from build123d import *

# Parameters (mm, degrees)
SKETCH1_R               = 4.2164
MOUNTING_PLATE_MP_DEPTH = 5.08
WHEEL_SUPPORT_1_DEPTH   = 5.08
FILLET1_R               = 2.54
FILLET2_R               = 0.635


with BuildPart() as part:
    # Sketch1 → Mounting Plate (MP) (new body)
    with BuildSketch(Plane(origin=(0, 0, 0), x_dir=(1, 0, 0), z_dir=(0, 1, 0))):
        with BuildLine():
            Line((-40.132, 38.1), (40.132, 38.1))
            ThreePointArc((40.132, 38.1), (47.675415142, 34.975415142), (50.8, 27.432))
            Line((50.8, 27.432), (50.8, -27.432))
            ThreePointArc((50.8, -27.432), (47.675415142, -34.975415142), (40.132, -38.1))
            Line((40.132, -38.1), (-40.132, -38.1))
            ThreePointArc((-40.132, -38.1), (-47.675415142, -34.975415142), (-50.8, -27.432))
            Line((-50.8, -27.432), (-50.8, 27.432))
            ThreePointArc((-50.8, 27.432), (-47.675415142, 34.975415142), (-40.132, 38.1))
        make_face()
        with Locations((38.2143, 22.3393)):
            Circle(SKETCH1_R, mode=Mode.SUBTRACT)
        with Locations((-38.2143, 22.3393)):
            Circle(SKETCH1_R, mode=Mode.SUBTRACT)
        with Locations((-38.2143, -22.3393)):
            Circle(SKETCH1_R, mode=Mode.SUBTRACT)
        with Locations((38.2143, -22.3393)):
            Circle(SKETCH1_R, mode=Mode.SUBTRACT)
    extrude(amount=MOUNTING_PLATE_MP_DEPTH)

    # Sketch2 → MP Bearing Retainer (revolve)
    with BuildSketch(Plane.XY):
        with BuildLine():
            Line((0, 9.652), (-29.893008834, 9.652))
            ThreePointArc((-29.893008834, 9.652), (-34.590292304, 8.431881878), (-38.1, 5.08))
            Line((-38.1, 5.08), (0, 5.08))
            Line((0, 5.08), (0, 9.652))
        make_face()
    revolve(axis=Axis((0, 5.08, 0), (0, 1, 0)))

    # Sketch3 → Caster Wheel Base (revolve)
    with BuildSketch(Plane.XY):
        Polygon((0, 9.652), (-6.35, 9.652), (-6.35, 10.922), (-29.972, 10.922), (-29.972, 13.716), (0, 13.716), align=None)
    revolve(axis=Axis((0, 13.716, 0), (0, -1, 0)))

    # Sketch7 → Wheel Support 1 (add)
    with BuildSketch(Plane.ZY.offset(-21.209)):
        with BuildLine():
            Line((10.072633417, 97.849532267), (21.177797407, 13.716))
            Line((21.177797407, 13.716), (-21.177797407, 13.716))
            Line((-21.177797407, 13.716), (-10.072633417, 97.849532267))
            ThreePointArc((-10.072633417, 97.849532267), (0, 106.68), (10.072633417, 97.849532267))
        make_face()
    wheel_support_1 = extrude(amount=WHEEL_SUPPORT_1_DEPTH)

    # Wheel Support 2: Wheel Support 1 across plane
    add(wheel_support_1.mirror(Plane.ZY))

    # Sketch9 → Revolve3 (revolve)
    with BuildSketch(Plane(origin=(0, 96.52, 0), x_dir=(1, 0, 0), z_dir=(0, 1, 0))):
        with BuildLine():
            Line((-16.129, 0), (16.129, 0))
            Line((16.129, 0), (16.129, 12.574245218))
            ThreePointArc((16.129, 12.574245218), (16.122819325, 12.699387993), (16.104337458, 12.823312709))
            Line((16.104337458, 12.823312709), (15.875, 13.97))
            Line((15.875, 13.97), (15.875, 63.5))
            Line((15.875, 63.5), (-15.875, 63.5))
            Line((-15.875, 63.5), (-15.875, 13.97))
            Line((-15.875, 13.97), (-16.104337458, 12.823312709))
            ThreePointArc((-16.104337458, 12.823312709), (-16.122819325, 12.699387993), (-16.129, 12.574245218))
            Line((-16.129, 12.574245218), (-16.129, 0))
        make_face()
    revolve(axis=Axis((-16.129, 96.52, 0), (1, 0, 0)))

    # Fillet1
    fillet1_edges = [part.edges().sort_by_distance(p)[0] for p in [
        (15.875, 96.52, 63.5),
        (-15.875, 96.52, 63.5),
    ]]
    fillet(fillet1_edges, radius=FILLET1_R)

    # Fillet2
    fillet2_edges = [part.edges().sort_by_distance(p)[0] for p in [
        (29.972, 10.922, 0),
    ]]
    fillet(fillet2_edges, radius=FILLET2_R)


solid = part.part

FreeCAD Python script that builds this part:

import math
import FreeCAD as App
import Part
import Sketcher

V = App.Vector
Q = App.Units.Quantity


def edges_at(feature, points):
    """Names of the edges that pass closest to the given points."""
    edges = feature.Shape.Edges
    near = lambda p: min(range(len(edges)), key=lambda i: edges[i].distToShape(Part.Vertex(*p))[0])
    return sorted({f"Edge{near(p) + 1}" for p in points})


def add_polygon(sketch, points):
    """Adds a closed chain of lines whose ends are joined by coincident constraints."""
    first, n = sketch.GeometryCount, len(points)
    for a, b in zip(points, points[1:] + points[:1]):
        sketch.addGeometry(Part.LineSegment(App.Vector(*a, 0), App.Vector(*b, 0)), False)
    for i in range(n):
        sketch.addConstraint(Sketcher.Constraint("Coincident", first + i, 2, first + (i + 1) % n, 1))

doc = App.newDocument("Part")
body = doc.addObject("PartDesign::Body", "Body")

sketch1 = body.newObject("Sketcher::SketchObject", "Sketch")
sketch1.AttachmentSupport = (doc.getObject("XZ_Plane"), [""])
sketch1.MapMode = "FlatFace"
sketch1.addGeometry([
    Part.LineSegment(V(40.1, -38.1, 0), V(-40.1, -38.1, 0)),
    Part.ArcOfCircle(Part.Circle(V(-40.1, -27.4, 0), V(0, 0, 1), 10.7), math.radians(180), math.radians(270)),
    Part.LineSegment(V(-50.8, -27.4, 0), V(-50.8, 27.4, 0)),
    Part.ArcOfCircle(Part.Circle(V(-40.1, 27.4, 0), V(0, 0, 1), 10.7), math.radians(90), math.radians(180)),
    Part.LineSegment(V(-40.1, 38.1, 0), V(40.1, 38.1, 0)),
    Part.ArcOfCircle(Part.Circle(V(40.1, 27.4, 0), V(0, 0, 1), 10.7), math.radians(0), math.radians(90)),
    Part.LineSegment(V(50.8, 27.4, 0), V(50.8, -27.4, 0)),
    Part.ArcOfCircle(Part.Circle(V(40.1, -27.4, 0), V(0, 0, 1), 10.7), math.radians(-90), math.radians(0)),
    Part.Circle(V(38.2, 22.3, 0), V(0, 0, 1), 4.2),
    Part.Circle(V(-38.2, 22.3, 0), V(0, 0, 1), 4.2),
    Part.Circle(V(38.2, -22.3, 0), V(0, 0, 1), 4.2),
    Part.Circle(V(-38.2, -22.3, 0), V(0, 0, 1), 4.2),
], False)
sketch1.addConstraint([
    Sketcher.Constraint("Tangent", 0, 2, 1, 2),
    Sketcher.Constraint("Tangent", 1, 1, 2, 1),
    Sketcher.Constraint("Tangent", 2, 2, 3, 2),
    Sketcher.Constraint("Tangent", 3, 1, 4, 1),
    Sketcher.Constraint("Tangent", 4, 2, 5, 2),
    Sketcher.Constraint("Tangent", 5, 1, 6, 1),
    Sketcher.Constraint("Tangent", 6, 2, 7, 2),
    Sketcher.Constraint("Tangent", 7, 1, 0, 1),
    Sketcher.Constraint("Horizontal", 0),
    Sketcher.Constraint("Vertical", 2),
    Sketcher.Constraint("Horizontal", 4),
    Sketcher.Constraint("Vertical", 6),
    Sketcher.Constraint("Equal", 1, 3),
    Sketcher.Constraint("Equal", 3, 5),
    Sketcher.Constraint("Equal", 5, 7),
    Sketcher.Constraint("Equal", 8, 9),
    Sketcher.Constraint("Equal", 9, 10),
    Sketcher.Constraint("Equal", 10, 11),
    Sketcher.Constraint("Symmetric", 1, 3, 5, 3, -1, 1),
    Sketcher.Constraint("Symmetric", 9, 3, 10, 3, -1, 1),
    Sketcher.Constraint("Symmetric", 8, 3, 11, 3, -1, 1),
    Sketcher.Constraint("Symmetric", 8, 3, 9, 3, -2),
    Sketcher.Constraint("Radius", 1, Q("0.42 in")),
    Sketcher.Constraint("Diameter", 8, Q("0.332 in")),
    Sketcher.Constraint("DistanceX", 1, 1, -1, 1, Q("2 in")),
    Sketcher.Constraint("DistanceY", 2, 1, 2, 2, Q("2.16 in")),
    Sketcher.Constraint("DistanceX", 9, 3, 8, 3, Q("3.009 in")),
    Sketcher.Constraint("DistanceY", 10, 3, 8, 3, Q("1.759 in")),
])
pad1 = body.newObject("PartDesign::Pad", "Pad")
pad1.Profile = sketch1
pad1.Length = Q("0.2 in")
pad1.Reversed = True

sketch2 = body.newObject("Sketcher::SketchObject", "Sketch001")
sketch2.AttachmentSupport = (doc.getObject("XY_Plane"), [""])
sketch2.MapMode = "FlatFace"
sketch2.addGeometry([
    Part.LineSegment(V(0, 9.7, 0), V(-29.9, 9.7, 0)),
    Part.ArcOfCircle(Part.Circle(V(-29.9, 0, 0), V(0, 0, 1), 9.7), math.radians(90), math.radians(148)),
    Part.LineSegment(V(-38.1, 5.1, 0), V(0, 5.1, 0)),
    Part.LineSegment(V(0, 5.1, 0), V(0, 9.7, 0)),
], False)
sketch2.addConstraint([
    Sketcher.Constraint("Tangent", 0, 2, 1, 1),
    Sketcher.Constraint("Coincident", 1, 2, 2, 1),
    Sketcher.Constraint("Coincident", 2, 2, 3, 1),
    Sketcher.Constraint("Coincident", 3, 2, 0, 1),
    Sketcher.Constraint("Horizontal", 0),
    Sketcher.Constraint("Horizontal", 2),
    Sketcher.Constraint("Vertical", 3),
    Sketcher.Constraint("PointOnObject", 1, 3, -1),
    Sketcher.Constraint("PointOnObject", 2, 2, -2),
    Sketcher.Constraint("Radius", 1, Q("0.38 in")),
    Sketcher.Constraint("DistanceX", 2, 1, 2, 2, Q("1.5 in")),
    Sketcher.Constraint("DistanceY", 3, 1, 3, 2, Q("0.18 in")),
])
revolution = body.newObject("PartDesign::Revolution", "Revolution")
revolution.Profile = sketch2
revolution.ReferenceAxis = (sketch2, ["V_Axis"])
revolution.Angle = 360

sketch3 = body.newObject("Sketcher::SketchObject", "Sketch002")
sketch3.AttachmentSupport = (doc.getObject("XY_Plane"), [""])
sketch3.MapMode = "FlatFace"
add_polygon(sketch3, [(-6.3, 9.7), (0, 9.7), (0, 13.7), (-30, 13.7), (-30, 10.9), (-6.3, 10.9)])
sketch3.addConstraint([
    Sketcher.Constraint("Horizontal", 0),
    Sketcher.Constraint("Vertical", 1),
    Sketcher.Constraint("Horizontal", 2),
    Sketcher.Constraint("Vertical", 3),
    Sketcher.Constraint("Horizontal", 4),
    Sketcher.Constraint("Vertical", 5),
    Sketcher.Constraint("PointOnObject", 0, 2, -2),
    Sketcher.Constraint("DistanceX", 0, 1, 0, 2, Q("0.25 in")),
    Sketcher.Constraint("DistanceX", 2, 2, 2, 1, Q("1.18 in")),
    Sketcher.Constraint("DistanceY", 1, 1, 1, 2, Q("0.16 in")),
    Sketcher.Constraint("DistanceY", 3, 2, 3, 1, Q("0.11 in")),
    Sketcher.Constraint("DistanceY", -1, 1, 0, 2, Q("0.38 in")),
])
revolution2 = body.newObject("PartDesign::Revolution", "Revolution001")
revolution2.Profile = sketch3
revolution2.ReferenceAxis = (sketch3, ["V_Axis"])
revolution2.Angle = 360

sketch4 = body.newObject("Sketcher::SketchObject", "Sketch003")
sketch4.AttachmentSupport = (doc.getObject("YZ_Plane"), [""])
sketch4.MapMode = "FlatFace"
sketch4.AttachmentOffset = App.Placement(V(0, 0, 0.835 * 25.4), App.Rotation())
sketch4.addGeometry([
    Part.LineSegment(V(14, 21, 0), V(98, 10, 0)),
    Part.ArcOfCircle(Part.Circle(V(97, 0, 0), V(0, 0, 1), 10), math.radians(-82), math.radians(82)),
    Part.LineSegment(V(98, -10, 0), V(14, -21, 0)),
    Part.LineSegment(V(14, -21, 0), V(14, 21, 0)),
], False)
sketch4.addConstraint([
    Sketcher.Constraint("Tangent", 0, 2, 1, 2),
    Sketcher.Constraint("Tangent", 1, 1, 2, 1),
    Sketcher.Constraint("Coincident", 2, 2, 3, 1),
    Sketcher.Constraint("Coincident", 3, 2, 0, 1),
    Sketcher.Constraint("Vertical", 3),
    Sketcher.Constraint("Symmetric", 0, 2, 1, 1, -1),
    Sketcher.Constraint("Radius", 1, Q("0.4 in")),
    Sketcher.Constraint("DistanceX", -1, 1, 1, 3, Q("3.8 in")),
    Sketcher.Constraint("DistanceX", -1, 1, 2, 2, Q("0.54 in")),
    Sketcher.Constraint("DistanceY", 3, 1, 3, 2, 42.355595),
])
pad2 = body.newObject("PartDesign::Pad", "Pad001")
pad2.Profile = sketch4
pad2.Length = Q("0.2 in")
pad2.Reversed = True
doc.recompute()

mirrored = body.newObject("PartDesign::Mirrored", "Mirrored")
mirrored.Originals = [pad2]
mirrored.MirrorPlane = (doc.getObject("YZ_Plane"), [""])
body.Tip = mirrored

sketch5 = body.newObject("Sketcher::SketchObject", "Sketch004")
sketch5.AttachmentSupport = (doc.getObject("XZ_Plane"), [""])
sketch5.MapMode = "FlatFace"
sketch5.AttachmentOffset = App.Placement(V(0, 0, -3.8 * 25.4), App.Rotation())
sketch5.addGeometry([
    Part.LineSegment(V(-16.13, 0, 0), V(16.13, 0, 0)),
    Part.LineSegment(V(16.13, 0, 0), V(16.13, -12.57, 0)),
    Part.ArcOfCircle(Part.Circle(V(14.86, -12.57, 0), V(0, 0, 1), 1.27), math.radians(-11.31), math.radians(0)),
    Part.LineSegment(V(16.1, -12.82, 0), V(15.88, -13.97, 0)),
    Part.LineSegment(V(15.88, -13.97, 0), V(15.88, -63.5, 0)),
    Part.LineSegment(V(15.88, -63.5, 0), V(-15.88, -63.5, 0)),
    Part.LineSegment(V(-15.88, -63.5, 0), V(-15.88, -13.97, 0)),
    Part.LineSegment(V(-15.88, -13.97, 0), V(-16.1, -12.82, 0)),
    Part.ArcOfCircle(Part.Circle(V(-14.86, -12.57, 0), V(0, 0, 1), 1.27), math.radians(180), math.radians(191.31)),
    Part.LineSegment(V(-16.13, -12.57, 0), V(-16.13, 0, 0)),
], False)
sketch5.addConstraint([
    Sketcher.Constraint("Coincident", 0, 2, 1, 1),
    Sketcher.Constraint("Tangent", 1, 2, 2, 2),
    Sketcher.Constraint("Tangent", 2, 1, 3, 1),
    Sketcher.Constraint("Coincident", 3, 2, 4, 1),
    Sketcher.Constraint("Coincident", 4, 2, 5, 1),
    Sketcher.Constraint("Coincident", 5, 2, 6, 1),
    Sketcher.Constraint("Coincident", 6, 2, 7, 1),
    Sketcher.Constraint("Tangent", 7, 2, 8, 2),
    Sketcher.Constraint("Tangent", 8, 1, 9, 1),
    Sketcher.Constraint("Coincident", 9, 2, 0, 1),
    Sketcher.Constraint("Horizontal", 0),
    Sketcher.Constraint("Vertical", 1),
    Sketcher.Constraint("Vertical", 4),
    Sketcher.Constraint("Horizontal", 5),
    Sketcher.Constraint("Vertical", 6),
    Sketcher.Constraint("Vertical", 9),
    Sketcher.Constraint("Equal", 2, 8),
    Sketcher.Constraint("Symmetric", 0, 2, 9, 2, -1, 1),
    Sketcher.Constraint("Symmetric", 3, 2, 6, 2, -2),
    Sketcher.Constraint("Horizontal", 2, 3, 8, 3),
    Sketcher.Constraint("Radius", 2, Q("0.05 in")),
    Sketcher.Constraint("DistanceX", 0, 1, 0, 2, Q("1.27 in")),
    Sketcher.Constraint("DistanceX", 5, 2, 5, 1, Q("1.25 in")),
    Sketcher.Constraint("DistanceY", 4, 2, 4, 1, Q("1.95 in")),
    Sketcher.Constraint("DistanceY", 4, 2, -1, 1, Q("2.5 in")),
    Sketcher.Constraint("DistanceY", 1, 2, 1, 1, 12.574245),
])
revolution3 = body.newObject("PartDesign::Revolution", "Revolution002")
revolution3.Profile = sketch5
revolution3.ReferenceAxis = (sketch5, ["H_Axis"])
revolution3.Angle = 360
doc.recompute()

fillet = body.newObject("PartDesign::Fillet", "Fillet")
fillet.Base = (revolution3, edges_at(revolution3, [(15.875, 96.52, 63.5), (-15.875, 96.52, 63.5)]))
fillet.Radius = Q("0.1 in")
doc.recompute()

fillet2 = body.newObject("PartDesign::Fillet", "Fillet001")
fillet2.Base = (fillet, edges_at(fillet, [(29.972, 10.922, 0)]))
fillet2.Radius = Q("0.025 in")

doc.recompute()
